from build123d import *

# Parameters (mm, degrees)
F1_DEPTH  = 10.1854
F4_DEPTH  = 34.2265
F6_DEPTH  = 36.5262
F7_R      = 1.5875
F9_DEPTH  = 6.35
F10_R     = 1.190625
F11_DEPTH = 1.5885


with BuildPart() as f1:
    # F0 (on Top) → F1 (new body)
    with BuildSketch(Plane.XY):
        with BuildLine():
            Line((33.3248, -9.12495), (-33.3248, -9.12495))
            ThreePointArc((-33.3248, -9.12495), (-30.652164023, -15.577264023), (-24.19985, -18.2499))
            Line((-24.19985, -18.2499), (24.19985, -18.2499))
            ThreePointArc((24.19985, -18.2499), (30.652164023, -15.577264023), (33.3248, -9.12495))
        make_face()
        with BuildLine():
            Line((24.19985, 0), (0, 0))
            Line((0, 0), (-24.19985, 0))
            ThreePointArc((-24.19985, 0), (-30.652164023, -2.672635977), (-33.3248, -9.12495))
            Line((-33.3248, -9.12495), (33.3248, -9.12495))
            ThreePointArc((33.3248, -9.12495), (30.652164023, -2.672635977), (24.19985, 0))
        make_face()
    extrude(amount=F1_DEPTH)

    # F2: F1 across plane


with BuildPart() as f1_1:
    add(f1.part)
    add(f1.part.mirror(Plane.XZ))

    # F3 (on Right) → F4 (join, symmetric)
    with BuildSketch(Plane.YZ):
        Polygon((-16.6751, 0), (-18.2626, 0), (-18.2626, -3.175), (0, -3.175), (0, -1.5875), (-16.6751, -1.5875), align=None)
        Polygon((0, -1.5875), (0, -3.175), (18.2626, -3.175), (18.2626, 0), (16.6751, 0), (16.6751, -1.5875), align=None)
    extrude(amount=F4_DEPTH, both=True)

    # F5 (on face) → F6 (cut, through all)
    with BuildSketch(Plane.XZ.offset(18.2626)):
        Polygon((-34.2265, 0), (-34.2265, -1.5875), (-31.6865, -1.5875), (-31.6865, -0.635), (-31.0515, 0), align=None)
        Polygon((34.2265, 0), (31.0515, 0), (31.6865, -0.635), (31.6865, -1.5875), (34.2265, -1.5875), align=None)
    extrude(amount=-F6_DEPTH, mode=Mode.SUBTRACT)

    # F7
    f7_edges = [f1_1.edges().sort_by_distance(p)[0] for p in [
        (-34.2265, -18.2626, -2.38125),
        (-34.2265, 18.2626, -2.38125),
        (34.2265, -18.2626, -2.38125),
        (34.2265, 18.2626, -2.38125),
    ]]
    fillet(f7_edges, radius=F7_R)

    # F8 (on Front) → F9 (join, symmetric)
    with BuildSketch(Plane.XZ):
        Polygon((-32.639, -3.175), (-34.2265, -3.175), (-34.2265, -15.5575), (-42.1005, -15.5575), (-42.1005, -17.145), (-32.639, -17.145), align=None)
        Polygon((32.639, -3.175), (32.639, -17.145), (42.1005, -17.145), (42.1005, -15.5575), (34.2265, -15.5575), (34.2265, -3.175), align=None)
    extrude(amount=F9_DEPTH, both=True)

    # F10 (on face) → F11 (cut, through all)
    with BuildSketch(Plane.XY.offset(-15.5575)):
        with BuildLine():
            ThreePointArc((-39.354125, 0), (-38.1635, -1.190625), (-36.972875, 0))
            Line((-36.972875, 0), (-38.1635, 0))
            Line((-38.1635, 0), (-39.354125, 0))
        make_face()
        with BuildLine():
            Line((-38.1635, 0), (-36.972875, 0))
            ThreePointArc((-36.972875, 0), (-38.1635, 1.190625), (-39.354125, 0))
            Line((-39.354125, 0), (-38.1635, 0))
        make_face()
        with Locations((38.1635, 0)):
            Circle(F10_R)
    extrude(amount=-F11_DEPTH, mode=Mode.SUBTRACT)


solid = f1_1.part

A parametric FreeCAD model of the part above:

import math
import FreeCAD as App
import Part
import Sketcher
from FreeCAD import Vector
Q = App.Units.Quantity


def edges_at(feature, points):
    """Names of the edges that pass closest to the given points."""
    edges = feature.Shape.Edges
    near = lambda p: min(range(len(edges)), key=lambda i: edges[i].distToShape(Part.Vertex(*p))[0])
    return sorted({f"Edge{near(p) + 1}" for p in points})

doc = App.newDocument("Part")
params = doc.addObject("Spreadsheet::Sheet", "Params")
for row, (alias, value) in enumerate([
    ("pad1_length", "0.401 in"),
    ("sketch2_width", "0.0625 in"),
    ("sketch2_width2", "1.438 in"),
    ("sketch2_height", "0.125 in"),
    ("pad2_length", "2.695 in"),
    ("sketch3_width", "0.1 in"),
    ("sketch3_width2", "0.125 in"),
    ("sketch3_height", "0.0625 in"),
    ("fillet_radius", "0.0625 in"),
    ("sketch4_width", "0.31 in"),
    ("sketch4_height", "0.55 in"),
    ("sketch4_width2", "0.0625 in"),
    ("pad3_length", "0.5 in"),
    ("sketch5_diameter", "0.09375 in"),
], start=1):
    params.set(f"A{row}", alias)
    params.set(f"B{row}", "=" + value)
    params.setAlias(f"B{row}", alias)

body = doc.addObject("PartDesign::Body", "Body")

# Sketch on XY plane
sketch1 = doc.addObject("Sketcher::SketchObject", "Sketch")
body.addObject(sketch1)
sketch1.AttachmentSupport = (doc.XY_Plane, [""])
sketch1.MapMode = "FlatFace"
sketch1.addGeometry([
    Part.ArcOfCircle(Part.Circle(Vector(-24, -9, 0), Vector(0, 0, 1), 9), math.radians(180), math.radians(270)),  # 0
    Part.LineSegment(Vector(-24, -18, 0), Vector(24, -18, 0)),  # 1
    Part.ArcOfCircle(Part.Circle(Vector(24, -9, 0), Vector(0, 0, 1), 9), math.radians(-90), math.radians(0)),  # 2
    Part.ArcOfCircle(Part.Circle(Vector(24, -9, 0), Vector(0, 0, 1), 9), math.radians(0), math.radians(90)),  # 3
    Part.LineSegment(Vector(24, 0, 0), Vector(-24, 0, 0)),  # 4
    Part.ArcOfCircle(Part.Circle(Vector(-24, -9, 0), Vector(0, 0, 1), 9), math.radians(90), math.radians(180)),  # 5
], False)
sketch1.addConstraint([
    Sketcher.Constraint("Tangent", 0, 2, 1, 1),
    Sketcher.Constraint("Tangent", 1, 2, 2, 1),
    Sketcher.Constraint("Tangent", 2, 2, 3, 1),
    Sketcher.Constraint("Tangent", 3, 2, 4, 1),
    Sketcher.Constraint("Tangent", 4, 2, 5, 1),
    Sketcher.Constraint("Tangent", 5, 2, 0, 1),
    Sketcher.Constraint("Horizontal", 1),
    Sketcher.Constraint("Horizontal", 4),
    Sketcher.Constraint("Equal", 0, 2),
    Sketcher.Constraint("Equal", 2, 3),
    Sketcher.Constraint("Symmetric", 3, 2, 4, 2, -1, 1),
    Sketcher.Constraint("Horizontal", 5, 3, 2, 2),
    Sketcher.Constraint("Horizontal", 2, 2, 5, 2),
    Sketcher.Constraint("DistanceX", 1, 1, 1, 2, Q("1.9055 in")),
    Sketcher.Constraint("DistanceX", -1, 1, 2, 2, Q("1.312 in")),
])
pad1 = doc.addObject("PartDesign::Pad", "Pad")
body.addObject(pad1)
pad1.Profile = sketch1
pad1.setExpression("Length", "Params.pad1_length")
body2 = doc.addObject("PartDesign::Body", "Body001")
doc.recompute()

body2.BaseFeature = body
doc.recompute()

mirroring = doc.addObject("Part::Mirroring", "Mirroring")
mirroring.Source = body
mirroring.Base = Vector(0, 0, 0)
mirroring.Normal = Vector(0, -1, 0)
body3 = doc.addObject("PartDesign::Body", "Body002")
body3.BaseFeature = mirroring
boolean = doc.addObject("PartDesign::Boolean", "Boolean")
body2.addObject(boolean)
boolean.Type = "Fuse"
boolean.addObjects([body3])
doc.recompute()

# Sketch on YZ plane
sketch2 = doc.addObject("Sketcher::SketchObject", "Sketch001")
body2.addObject(sketch2)
sketch2.AttachmentSupport = (doc.getObject("YZ_Plane001"), [""])
sketch2.MapMode = "FlatFace"
sketch2.addGeometry([
    Part.LineSegment(Vector(-16.7, 0, 0), Vector(-18.3, 0, 0)),  # 0
    Part.LineSegment(Vector(-18.3, 0, 0), Vector(-18.3, -3.2, 0)),  # 1
    Part.LineSegment(Vector(-18.3, -3.2, 0), Vector(18.3, -3.2, 0)),  # 2
    Part.LineSegment(Vector(18.3, -3.2, 0), Vector(18.3, 0, 0)),  # 3
    Part.LineSegment(Vector(18.3, 0, 0), Vector(16.7, 0, 0)),  # 4
    Part.LineSegment(Vector(16.7, 0, 0), Vector(16.7, -1.6, 0)),  # 5
    Part.LineSegment(Vector(16.7, -1.6, 0), Vector(-16.7, -1.6, 0)),  # 6
    Part.LineSegment(Vector(-16.7, -1.6, 0), Vector(-16.7, 0, 0)),  # 7
], False)
sketch2.addConstraint([
    Sketcher.Constraint("Coincident", 0, 2, 1, 1),
    Sketcher.Constraint("Coincident", 1, 2, 2, 1),
    Sketcher.Constraint("Coincident", 2, 2, 3, 1),
    Sketcher.Constraint("Coincident", 3, 2, 4, 1),
    Sketcher.Constraint("Coincident", 4, 2, 5, 1),
    Sketcher.Constraint("Coincident", 5, 2, 6, 1),
    Sketcher.Constraint("Coincident", 6, 2, 7, 1),
    Sketcher.Constraint("Coincident", 7, 2, 0, 1),
    Sketcher.Constraint("Horizontal", 0),
    Sketcher.Constraint("Vertical", 1),
    Sketcher.Constraint("Horizontal", 2),
    Sketcher.Constraint("Vertical", 3),
    Sketcher.Constraint("Horizontal", 4),
    Sketcher.Constraint("Vertical", 5),
    Sketcher.Constraint("Horizontal", 6),
    Sketcher.Constraint("Vertical", 7),
    Sketcher.Constraint("Symmetric", 0, 2, 3, 2, -1, 1),
    Sketcher.Constraint("Symmetric", 4, 2, 7, 2, -2),
    Sketcher.Constraint("Equal", 4, 5),
    Sketcher.Constraint("DistanceX", 0, 2, 0, 1, Q("0.0625 in")),
    Sketcher.Constraint("DistanceX", 2, 1, 2, 2, Q("1.438 in")),
    Sketcher.Constraint("DistanceY", 1, 2, 1, 1, Q("0.125 in")),
])
sketch2.setExpression("Constraints[19]", "Params.sketch2_width")
sketch2.setExpression("Constraints[20]", "Params.sketch2_width2")
sketch2.setExpression("Constraints[21]", "Params.sketch2_height")
pad2 = doc.addObject("PartDesign::Pad", "Pad001")
body2.addObject(pad2)
pad2.Profile = sketch2
pad2.setExpression("Length", "Params.pad2_length")
pad2.Midplane = True

# Sketch on XZ plane
sketch3 = doc.addObject("Sketcher::SketchObject", "Sketch002")
body2.addObject(sketch3)
sketch3.AttachmentSupport = (doc.getObject("XZ_Plane001"), [""])
sketch3.MapMode = "FlatFace"
sketch3.AttachmentOffset = App.Placement(Vector(0, 0, 0.719 * 25.4), App.Rotation())
sketch3.addGeometry([
    Part.LineSegment(Vector(-34.2, 0, 0), Vector(-34.2, -1.6, 0)),  # 0
    Part.LineSegment(Vector(-34.2, -1.6, 0), Vector(-31.7, -1.6, 0)),  # 1
    Part.LineSegment(Vector(-31.7, -1.6, 0), Vector(-31.7, -0.6, 0)),  # 2
    Part.LineSegment(Vector(-31.7, -0.6, 0), Vector(-31.1, 0, 0)),  # 3
    Part.LineSegment(Vector(-31.1, 0, 0), Vector(-34.2, 0, 0)),  # 4
    Part.LineSegment(Vector(34.2, 0, 0), Vector(31.1, 0, 0)),  # 5
    Part.LineSegment(Vector(31.1, 0, 0), Vector(31.7, -0.6, 0)),  # 6
    Part.LineSegment(Vector(31.7, -0.6, 0), Vector(31.7, -1.6, 0)),  # 7
    Part.LineSegment(Vector(31.7, -1.6, 0), Vector(34.2, -1.6, 0)),  # 8
    Part.LineSegment(Vector(34.2, -1.6, 0), Vector(34.2, 0, 0)),  # 9
], False)
sketch3.addConstraint([
    Sketcher.Constraint("Coincident", 0, 2, 1, 1),
    Sketcher.Constraint("Coincident", 1, 2, 2, 1),
    Sketcher.Constraint("Coincident", 2, 2, 3, 1),
    Sketcher.Constraint("Coincident", 3, 2, 4, 1),
    Sketcher.Constraint("Coincident", 4, 2, 0, 1),
    Sketcher.Constraint("Coincident", 5, 2, 6, 1),
    Sketcher.Constraint("Coincident", 6, 2, 7, 1),
    Sketcher.Constraint("Coincident", 7, 2, 8, 1),
    Sketcher.Constraint("Coincident", 8, 2, 9, 1),
    Sketcher.Constraint("Coincident", 9, 2, 5, 1),
    Sketcher.Constraint("Vertical", 0),
    Sketcher.Constraint("Horizontal", 1),
    Sketcher.Constraint("Vertical", 2),
    Sketcher.Constraint("Horizontal", 4),
    Sketcher.Constraint("Horizontal", 5),
    Sketcher.Constraint("Vertical", 7),
    Sketcher.Constraint("Horizontal", 8),
    Sketcher.Constraint("Vertical", 9),
    Sketcher.Constraint("Symmetric", 3, 2, 5, 2, -1, 1),
    Sketcher.Constraint("Symmetric", 2, 2, 6, 2, -2),
    Sketcher.Constraint("Symmetric", 0, 2, 8, 2, -2),
    Sketcher.Constraint("PointOnObject", 3, 2, -1),
    Sketcher.Constraint("Perpendicular", 3, 6),
    Sketcher.Constraint("DistanceX", 1, 1, 1, 2, Q("0.1 in")),
    Sketcher.Constraint("DistanceX", 4, 2, 4, 1, Q("0.125 in")),
    Sketcher.Constraint("DistanceY", 0, 2, 0, 1, Q("0.0625 in")),
    Sketcher.Constraint("DistanceX", 2, 2, 5, 2, Q("2.47 in")),
])
sketch3.setExpression("Constraints[23]", "Params.sketch3_width")
sketch3.setExpression("Constraints[24]", "Params.sketch3_width2")
sketch3.setExpression("Constraints[25]", "Params.sketch3_height")
pocket1 = doc.addObject("PartDesign::Pocket", "Pocket")
body2.addObject(pocket1)
pocket1.Profile = sketch3
pocket1.Type = "ThroughAll"
doc.recompute()

fillet = doc.addObject("PartDesign::Fillet", "Fillet")
body2.addObject(fillet)
fillet.Base = (pocket1, edges_at(pocket1, [
    (-34.227, -18.263, -2.381),
    (-34.227, 18.263, -2.381),
    (34.227, -18.263, -2.381),
    (34.227, 18.263, -2.381),
]))
fillet.setExpression("Radius", "Params.fillet_radius")

# Sketch on XZ plane
sketch4 = doc.addObject("Sketcher::SketchObject", "Sketch003")
body2.addObject(sketch4)
sketch4.AttachmentSupport = (doc.getObject("XZ_Plane001"), [""])
sketch4.MapMode = "FlatFace"
sketch4.addGeometry([
    Part.LineSegment(Vector(-32.6, -3.2, 0), Vector(-34.2, -3.2, 0)),  # 0
    Part.LineSegment(Vector(-34.2, -3.2, 0), Vector(-34.2, -15.6, 0)),  # 1
    Part.LineSegment(Vector(-34.2, -15.6, 0), Vector(-42.1, -15.6, 0)),  # 2
    Part.LineSegment(Vector(-42.1, -15.6, 0), Vector(-42.1, -17.1, 0)),  # 3
    Part.LineSegment(Vector(-42.1, -17.1, 0), Vector(-32.6, -17.1, 0)),  # 4
    Part.LineSegment(Vector(-32.6, -17.1, 0), Vector(-32.6, -3.2, 0)),  # 5
    Part.LineSegment(Vector(32.6, -3.2, 0), Vector(32.6, -17.1, 0)),  # 6
    Part.LineSegment(Vector(32.6, -17.1, 0), Vector(42.1, -17.1, 0)),  # 7
    Part.LineSegment(Vector(42.1, -17.1, 0), Vector(42.1, -15.6, 0)),  # 8
    Part.LineSegment(Vector(42.1, -15.6, 0), Vector(34.2, -15.6, 0)),  # 9
    Part.LineSegment(Vector(34.2, -15.6, 0), Vector(34.2, -3.2, 0)),  # 10
    Part.LineSegment(Vector(34.2, -3.2, 0), Vector(32.6, -3.2, 0)),  # 11
], False)
sketch4.addConstraint([
    Sketcher.Constraint("Coincident", 0, 2, 1, 1),
    Sketcher.Constraint("Coincident", 1, 2, 2, 1),
    Sketcher.Constraint("Coincident", 2, 2, 3, 1),
    Sketcher.Constraint("Coincident", 3, 2, 4, 1),
    Sketcher.Constraint("Coincident", 4, 2, 5, 1),
    Sketcher.Constraint("Coincident", 5, 2, 0, 1),
    Sketcher.Constraint("Coincident", 6, 2, 7, 1),
    Sketcher.Constraint("Coincident", 7, 2, 8, 1),
    Sketcher.Constraint("Coincident", 8, 2, 9, 1),
    Sketcher.Constraint("Coincident", 9, 2, 10, 1),
    Sketcher.Constraint("Coincident", 10, 2, 11, 1),
    Sketcher.Constraint("Coincident", 11, 2, 6, 1),
    Sketcher.Constraint("Horizontal", 0),
    Sketcher.Constraint("Vertical", 1),
    Sketcher.Constraint("Horizontal", 2),
    Sketcher.Constraint("Vertical", 3),
    Sketcher.Constraint("Horizontal", 4),
    Sketcher.Constraint("Vertical", 5),
    Sketcher.Constraint("Vertical", 6),
    Sketcher.Constraint("Horizontal", 7),
    Sketcher.Constraint("Vertical", 8),
    Sketcher.Constraint("Horizontal", 9),
    Sketcher.Constraint("Vertical", 10),
    Sketcher.Constraint("Horizontal", 11),
    Sketcher.Constraint("Symmetric", 4, 2, 6, 2, -2),
    Sketcher.Constraint("Symmetric", 2, 2, 8, 2, -2),
    Sketcher.Constraint("Symmetric", 0, 2, 10, 2, -2),
    Sketcher.Constraint("Equal", 11, 3),
    Sketcher.Constraint("DistanceX", 2, 2, 2, 1, Q("0.31 in")),
    Sketcher.Constraint("DistanceY", 5, 1, 5, 2, Q("0.55 in")),
    Sketcher.Constraint("DistanceX", 0, 2, 0, 1, Q("0.0625 in")),
    Sketcher.Constraint("DistanceX", 4, 2, 6, 2, Q("2.57 in")),
    Sketcher.Constraint("DistanceY", 0, 2, -1, 1, Q("0.125 in")),
])
sketch4.setExpression("Constraints[28]", "Params.sketch4_width")
sketch4.setExpression("Constraints[29]", "Params.sketch4_height")
sketch4.setExpression("Constraints[30]", "Params.sketch4_width2")
pad3 = doc.addObject("PartDesign::Pad", "Pad002")
body2.addObject(pad3)
pad3.Profile = sketch4
pad3.setExpression("Length", "Params.pad3_length")
pad3.Midplane = True

# Sketch on XY plane
sketch5 = doc.addObject("Sketcher::SketchObject", "Sketch004")
body2.addObject(sketch5)
sketch5.AttachmentSupport = (doc.getObject("XY_Plane001"), [""])
sketch5.MapMode = "FlatFace"
sketch5.AttachmentOffset = App.Placement(Vector(0, 0, -0.6125 * 25.4), App.Rotation())
sketch5.addGeometry([
    Part.Circle(Vector(-38.2, 0, 0), Vector(0, 0, 1), 1.2),
    Part.Circle(Vector(38.2, 0, 0), Vector(0, 0, 1), 1.2),
], False)
sketch5.addConstraint([
    Sketcher.Constraint("Equal", 0, 1),
    Sketcher.Constraint("Symmetric", 0, 3, 1, 3, -1, 1),
    Sketcher.Constraint("PointOnObject", 0, 3, -1),
    Sketcher.Constraint("Diameter", 0, Q("0.09375 in")),
    Sketcher.Constraint("DistanceX", 0, 3, 1, 3, Q("3.005 in")),
])
sketch5.setExpression("Constraints[3]", "Params.sketch5_diameter")
pocket2 = doc.addObject("PartDesign::Pocket", "Pocket001")
body2.addObject(pocket2)
pocket2.Profile = sketch5
pocket2.Type = "ThroughAll"
mirroring.Visibility = False

doc.recompute()
